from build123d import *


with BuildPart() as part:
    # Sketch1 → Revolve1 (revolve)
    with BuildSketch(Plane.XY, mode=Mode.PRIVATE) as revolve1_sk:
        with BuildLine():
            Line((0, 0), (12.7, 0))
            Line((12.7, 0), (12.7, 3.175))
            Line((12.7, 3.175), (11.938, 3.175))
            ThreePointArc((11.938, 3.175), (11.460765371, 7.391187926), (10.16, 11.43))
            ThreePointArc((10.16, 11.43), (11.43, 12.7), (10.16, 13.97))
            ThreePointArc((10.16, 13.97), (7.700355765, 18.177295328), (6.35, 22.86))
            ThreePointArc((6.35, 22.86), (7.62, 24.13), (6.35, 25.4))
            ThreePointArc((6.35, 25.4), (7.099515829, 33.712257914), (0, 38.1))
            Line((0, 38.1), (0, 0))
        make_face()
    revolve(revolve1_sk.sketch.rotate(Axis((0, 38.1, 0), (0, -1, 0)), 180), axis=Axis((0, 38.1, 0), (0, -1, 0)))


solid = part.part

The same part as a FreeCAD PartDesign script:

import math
import FreeCAD as App
import Part
import Sketcher
from FreeCAD import Vector
Q = App.Units.Quantity

doc = App.newDocument("Part")
params = doc.addObject("Spreadsheet::Sheet", "Params")
for row, (alias, value) in enumerate([
    ("sketch1_radius", "0.05 in"),
    ("sketch1_width", "0.5 in"),
    ("sketch1_height", "1.5 in"),
    ("sketch1_radius2", "0.3125 in"),
    ("sketch1_width2", "0.03 in"),
    ("revolution_angle", "360 deg"),
], start=1):
    params.set(f"A{row}", alias)
    params.set(f"B{row}", "=" + value)
    params.setAlias(f"B{row}", alias)

body = doc.addObject("PartDesign::Body", "Body")

sketch1 = body.newObject("Sketcher::SketchObject", "Sketch")
sketch1.AttachmentSupport = (doc.getObject("XY_Plane"), [""])
sketch1.MapMode = "FlatFace"
sketch1.addGeometry(Part.LineSegment(Vector(0, 0, 0), Vector(12.7, 0, 0)), False)
sketch1.addGeometry(Part.LineSegment(Vector(12.7, 0, 0), Vector(12.7, 3.2, 0)), False)
sketch1.addGeometry(Part.LineSegment(Vector(12.7, 3.2, 0), Vector(11.9, 3.2, 0)), False)
sketch1.addGeometry(Part.ArcOfCircle(Part.Circle(Vector(-9.4, 2.9, 0), Vector(0, 0, 1), 21.4), math.radians(1), math.radians(24)), False)
sketch1.addGeometry(Part.ArcOfCircle(Part.Circle(Vector(10.2, 12.7, 0), Vector(0, 0, 1), 1.3), math.radians(-90), math.radians(90)), False)
sketch1.addGeometry(Part.ArcOfCircle(Part.Circle(Vector(25.8, 25.9, 0), Vector(0, 0, 1), 19.7), math.radians(-171), math.radians(-143)), False)
sketch1.addGeometry(Part.ArcOfCircle(Part.Circle(Vector(6.3, 24.1, 0), Vector(0, 0, 1), 1.3), math.radians(-90), math.radians(90)), False)
sketch1.addGeometry(Part.ArcOfCircle(Part.Circle(Vector(0, 30.2, 0), Vector(0, 0, 1), 7.9), math.radians(-37), math.radians(90)), False)
sketch1.addGeometry(Part.LineSegment(Vector(0, 38.1, 0), Vector(0, 0, 0)), False)
sketch1.addConstraint(Sketcher.Constraint("Coincident", 0, 2, 1, 1))
sketch1.addConstraint(Sketcher.Constraint("Coincident", 1, 2, 2, 1))
sketch1.addConstraint(Sketcher.Constraint("Coincident", 2, 2, 3, 1))
sketch1.addConstraint(Sketcher.Constraint("Coincident", 3, 2, 4, 1))
sketch1.addConstraint(Sketcher.Constraint("Coincident", 4, 2, 5, 2))
sketch1.addConstraint(Sketcher.Constraint("Coincident", 5, 1, 6, 1))
sketch1.addConstraint(Sketcher.Constraint("Coincident", 6, 2, 7, 1))
sketch1.addConstraint(Sketcher.Constraint("Coincident", 7, 2, 8, 1))
sketch1.addConstraint(Sketcher.Constraint("Coincident", 8, 2, 0, 1))
sketch1.addConstraint(Sketcher.Constraint("Horizontal", 0))
sketch1.addConstraint(Sketcher.Constraint("Vertical", 1))
sketch1.addConstraint(Sketcher.Constraint("Horizontal", 2))
sketch1.addConstraint(Sketcher.Constraint("Vertical", 8))
sketch1.addConstraint(Sketcher.Constraint("Coincident", 8, 2, -1, 1))
sketch1.addConstraint(Sketcher.Constraint("Equal", 4, 6))
sketch1.addConstraint(Sketcher.Constraint("PointOnObject", 7, 3, -2))
sketch1.addConstraint(Sketcher.Constraint("Vertical", 4, 3, 3, 2))
sketch1.addConstraint(Sketcher.Constraint("Vertical", 3, 2, 4, 2))
sketch1.addConstraint(Sketcher.Constraint("Vertical", 6, 3, 5, 1))
sketch1.addConstraint(Sketcher.Constraint("Vertical", 5, 1, 6, 2))
sketch1.addConstraint(Sketcher.Constraint("Radius", 4, Q("0.05 in")))
sketch1.addConstraint(Sketcher.Constraint("DistanceX", 0, 1, 0, 2, Q("0.5 in")))
sketch1.addConstraint(Sketcher.Constraint("DistanceY", 8, 2, 8, 1, Q("1.5 in")))
sketch1.addConstraint(Sketcher.Constraint("DistanceY", -1, 1, 6, 2, Q("1 in")))
sketch1.addConstraint(Sketcher.Constraint("Radius", 7, Q("0.3125 in")))
sketch1.addConstraint(Sketcher.Constraint("DistanceX", 2, 2, 2, 1, Q("0.03 in")))
sketch1.addConstraint(Sketcher.Constraint("DistanceX", -1, 1, 4, 3, Q("0.4 in")))
sketch1.addConstraint(Sketcher.Constraint("DistanceY", -1, 1, 4, 3, Q("0.5 in")))
sketch1.addConstraint(Sketcher.Constraint("DistanceY", 1, 1, 1, 2, Q("0.125 in")))
sketch1.addConstraint(Sketcher.Constraint("Radius", 3, 21.371851))
sketch1.addConstraint(Sketcher.Constraint("Radius", 5, 19.679987))
sketch1.setExpression("Constraints[20]", "Params.sketch1_radius")
sketch1.setExpression("Constraints[21]", "Params.sketch1_width")
sketch1.setExpression("Constraints[22]", "Params.sketch1_height")
sketch1.setExpression("Constraints[24]", "Params.sketch1_radius2")
sketch1.setExpression("Constraints[25]", "Params.sketch1_width2")
revolution = body.newObject("PartDesign::Revolution", "Revolution")
revolution.Profile = sketch1
revolution.ReferenceAxis = (sketch1, ["V_Axis"])
revolution.setExpression("Angle", "Params.revolution_angle")

doc.recompute()
